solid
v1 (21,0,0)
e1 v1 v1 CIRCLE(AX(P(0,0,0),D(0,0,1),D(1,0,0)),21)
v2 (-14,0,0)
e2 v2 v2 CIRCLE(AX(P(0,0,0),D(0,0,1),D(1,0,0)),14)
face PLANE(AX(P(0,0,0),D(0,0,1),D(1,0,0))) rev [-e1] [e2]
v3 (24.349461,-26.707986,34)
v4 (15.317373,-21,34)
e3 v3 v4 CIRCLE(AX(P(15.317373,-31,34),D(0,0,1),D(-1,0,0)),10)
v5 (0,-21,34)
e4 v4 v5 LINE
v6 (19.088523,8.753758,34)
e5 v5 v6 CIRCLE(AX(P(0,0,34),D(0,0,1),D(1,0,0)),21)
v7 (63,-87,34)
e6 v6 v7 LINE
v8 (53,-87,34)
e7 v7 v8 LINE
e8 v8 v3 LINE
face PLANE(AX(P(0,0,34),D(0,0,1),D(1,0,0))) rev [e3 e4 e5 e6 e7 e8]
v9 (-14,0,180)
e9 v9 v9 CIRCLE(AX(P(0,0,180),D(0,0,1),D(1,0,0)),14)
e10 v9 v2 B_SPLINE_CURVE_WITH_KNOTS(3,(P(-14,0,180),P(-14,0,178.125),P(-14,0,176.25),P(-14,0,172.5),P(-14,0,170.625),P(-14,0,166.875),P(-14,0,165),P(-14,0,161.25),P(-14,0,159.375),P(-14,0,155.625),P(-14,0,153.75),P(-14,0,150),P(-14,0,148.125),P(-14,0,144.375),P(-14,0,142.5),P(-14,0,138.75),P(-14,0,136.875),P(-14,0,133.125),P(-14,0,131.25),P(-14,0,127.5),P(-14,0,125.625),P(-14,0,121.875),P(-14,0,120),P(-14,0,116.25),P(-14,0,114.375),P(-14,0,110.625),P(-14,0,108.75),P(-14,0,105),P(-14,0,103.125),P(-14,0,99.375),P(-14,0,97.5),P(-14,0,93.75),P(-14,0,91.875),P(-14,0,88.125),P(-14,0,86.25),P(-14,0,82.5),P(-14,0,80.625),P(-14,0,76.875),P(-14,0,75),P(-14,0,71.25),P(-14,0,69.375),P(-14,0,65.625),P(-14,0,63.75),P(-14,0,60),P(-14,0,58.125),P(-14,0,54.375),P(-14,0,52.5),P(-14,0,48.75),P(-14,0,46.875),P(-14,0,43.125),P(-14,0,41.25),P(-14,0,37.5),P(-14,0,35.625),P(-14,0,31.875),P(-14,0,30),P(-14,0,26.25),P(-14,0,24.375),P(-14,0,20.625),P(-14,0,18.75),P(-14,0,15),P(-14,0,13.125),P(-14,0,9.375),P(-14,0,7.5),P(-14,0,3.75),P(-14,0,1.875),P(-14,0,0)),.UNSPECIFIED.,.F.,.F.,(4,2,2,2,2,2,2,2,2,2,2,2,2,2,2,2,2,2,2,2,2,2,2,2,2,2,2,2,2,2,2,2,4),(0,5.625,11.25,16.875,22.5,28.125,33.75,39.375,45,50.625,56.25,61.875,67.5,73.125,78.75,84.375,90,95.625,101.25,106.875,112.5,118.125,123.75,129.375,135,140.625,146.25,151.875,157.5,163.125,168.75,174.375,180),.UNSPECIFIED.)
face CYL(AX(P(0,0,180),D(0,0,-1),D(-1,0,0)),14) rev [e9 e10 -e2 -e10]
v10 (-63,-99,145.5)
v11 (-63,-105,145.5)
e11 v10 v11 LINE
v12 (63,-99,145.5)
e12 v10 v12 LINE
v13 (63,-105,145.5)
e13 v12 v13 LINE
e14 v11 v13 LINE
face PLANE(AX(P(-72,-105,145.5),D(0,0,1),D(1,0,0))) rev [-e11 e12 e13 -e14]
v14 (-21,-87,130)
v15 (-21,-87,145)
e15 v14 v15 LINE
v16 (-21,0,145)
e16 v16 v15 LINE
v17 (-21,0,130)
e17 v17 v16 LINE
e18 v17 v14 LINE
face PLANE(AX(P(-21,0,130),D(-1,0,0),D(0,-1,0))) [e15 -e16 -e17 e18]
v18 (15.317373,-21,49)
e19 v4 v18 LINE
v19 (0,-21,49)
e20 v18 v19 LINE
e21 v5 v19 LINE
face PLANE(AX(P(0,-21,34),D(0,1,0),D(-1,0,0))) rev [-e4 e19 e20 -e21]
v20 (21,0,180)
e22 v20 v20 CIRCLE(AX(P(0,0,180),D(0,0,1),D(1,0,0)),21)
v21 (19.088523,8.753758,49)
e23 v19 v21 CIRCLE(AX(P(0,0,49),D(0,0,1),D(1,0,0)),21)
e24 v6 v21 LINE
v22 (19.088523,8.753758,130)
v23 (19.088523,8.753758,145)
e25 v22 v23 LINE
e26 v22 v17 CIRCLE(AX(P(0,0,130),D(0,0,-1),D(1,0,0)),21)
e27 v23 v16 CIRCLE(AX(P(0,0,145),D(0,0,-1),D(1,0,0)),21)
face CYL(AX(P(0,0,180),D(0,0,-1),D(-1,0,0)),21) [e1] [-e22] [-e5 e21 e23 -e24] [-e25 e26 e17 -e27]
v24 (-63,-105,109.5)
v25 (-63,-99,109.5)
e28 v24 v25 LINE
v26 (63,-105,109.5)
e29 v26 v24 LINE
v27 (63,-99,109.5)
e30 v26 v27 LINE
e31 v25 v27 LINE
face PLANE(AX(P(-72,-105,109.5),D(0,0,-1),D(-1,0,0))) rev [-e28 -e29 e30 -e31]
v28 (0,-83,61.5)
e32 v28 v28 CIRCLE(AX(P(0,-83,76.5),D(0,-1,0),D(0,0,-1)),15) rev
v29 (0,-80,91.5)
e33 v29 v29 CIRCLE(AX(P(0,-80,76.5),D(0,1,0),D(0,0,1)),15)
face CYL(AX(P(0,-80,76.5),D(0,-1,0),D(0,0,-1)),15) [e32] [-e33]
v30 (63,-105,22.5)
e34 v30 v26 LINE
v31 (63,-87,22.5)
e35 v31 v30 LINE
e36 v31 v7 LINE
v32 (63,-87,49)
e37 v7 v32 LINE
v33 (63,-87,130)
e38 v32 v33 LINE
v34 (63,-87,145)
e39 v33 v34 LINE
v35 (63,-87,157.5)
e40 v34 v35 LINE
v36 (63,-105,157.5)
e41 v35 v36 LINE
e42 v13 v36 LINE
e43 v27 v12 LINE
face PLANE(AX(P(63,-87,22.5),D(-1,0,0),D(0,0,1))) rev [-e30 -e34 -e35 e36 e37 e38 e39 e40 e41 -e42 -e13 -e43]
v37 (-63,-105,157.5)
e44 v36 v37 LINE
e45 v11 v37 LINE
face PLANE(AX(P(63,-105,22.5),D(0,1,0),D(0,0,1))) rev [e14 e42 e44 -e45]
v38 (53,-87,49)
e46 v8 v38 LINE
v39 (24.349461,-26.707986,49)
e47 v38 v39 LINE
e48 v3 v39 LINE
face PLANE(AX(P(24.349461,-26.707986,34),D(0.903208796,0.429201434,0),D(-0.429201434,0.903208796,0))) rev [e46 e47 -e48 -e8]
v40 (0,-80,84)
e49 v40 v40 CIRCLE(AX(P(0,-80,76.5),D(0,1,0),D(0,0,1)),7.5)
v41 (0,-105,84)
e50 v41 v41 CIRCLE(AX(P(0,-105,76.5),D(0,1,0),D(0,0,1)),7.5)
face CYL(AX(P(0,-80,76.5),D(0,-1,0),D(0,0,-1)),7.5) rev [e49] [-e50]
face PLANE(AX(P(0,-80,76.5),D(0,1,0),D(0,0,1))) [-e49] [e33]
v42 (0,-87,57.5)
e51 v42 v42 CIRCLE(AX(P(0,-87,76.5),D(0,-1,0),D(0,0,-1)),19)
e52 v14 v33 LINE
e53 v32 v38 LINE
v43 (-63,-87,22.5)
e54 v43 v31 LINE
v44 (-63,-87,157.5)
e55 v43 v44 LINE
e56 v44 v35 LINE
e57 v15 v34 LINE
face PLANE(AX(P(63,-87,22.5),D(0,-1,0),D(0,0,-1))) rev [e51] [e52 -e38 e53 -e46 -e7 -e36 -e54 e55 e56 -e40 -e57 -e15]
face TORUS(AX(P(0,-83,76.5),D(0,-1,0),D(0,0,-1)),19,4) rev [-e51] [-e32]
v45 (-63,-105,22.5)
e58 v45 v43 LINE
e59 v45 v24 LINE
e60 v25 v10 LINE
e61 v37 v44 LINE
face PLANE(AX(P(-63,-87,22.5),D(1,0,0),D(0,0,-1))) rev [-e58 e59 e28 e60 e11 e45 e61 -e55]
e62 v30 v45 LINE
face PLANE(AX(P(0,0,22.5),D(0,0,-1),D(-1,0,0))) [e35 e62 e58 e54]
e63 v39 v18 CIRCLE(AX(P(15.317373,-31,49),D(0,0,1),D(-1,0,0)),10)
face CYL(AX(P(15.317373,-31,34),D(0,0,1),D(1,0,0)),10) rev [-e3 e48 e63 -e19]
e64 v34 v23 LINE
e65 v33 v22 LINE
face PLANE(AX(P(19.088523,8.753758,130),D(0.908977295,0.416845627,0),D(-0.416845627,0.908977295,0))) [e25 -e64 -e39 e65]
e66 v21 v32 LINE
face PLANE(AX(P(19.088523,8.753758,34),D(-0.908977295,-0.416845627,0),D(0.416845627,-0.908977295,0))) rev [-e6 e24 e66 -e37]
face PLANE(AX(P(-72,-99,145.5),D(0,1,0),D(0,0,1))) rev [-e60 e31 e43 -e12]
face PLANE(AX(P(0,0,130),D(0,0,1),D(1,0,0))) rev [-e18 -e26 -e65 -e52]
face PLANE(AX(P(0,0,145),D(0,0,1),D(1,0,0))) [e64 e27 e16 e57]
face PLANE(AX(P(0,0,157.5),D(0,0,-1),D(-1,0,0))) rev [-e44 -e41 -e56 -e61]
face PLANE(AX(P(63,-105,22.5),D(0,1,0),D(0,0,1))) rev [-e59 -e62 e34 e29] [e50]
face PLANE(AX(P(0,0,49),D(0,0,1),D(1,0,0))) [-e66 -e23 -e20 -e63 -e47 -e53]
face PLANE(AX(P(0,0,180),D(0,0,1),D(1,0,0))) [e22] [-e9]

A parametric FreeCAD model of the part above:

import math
import FreeCAD as App
import Part
import Sketcher

V = App.Vector
Q = App.Units.Quantity


def edges_at(feature, points):
    """Names of the edges that pass closest to the given points."""
    edges = feature.Shape.Edges
    near = lambda p: min(range(len(edges)), key=lambda i: edges[i].distToShape(Part.Vertex(*p))[0])
    return sorted({f"Edge{near(p) + 1}" for p in points})


def add_polygon(sketch, points):
    """Adds a closed chain of lines whose ends are joined by coincident constraints."""
    first, n = sketch.GeometryCount, len(points)
    for a, b in zip(points, points[1:] + points[:1]):
        sketch.addGeometry(Part.LineSegment(App.Vector(*a, 0), App.Vector(*b, 0)), False)
    for i in range(n):
        sketch.addConstraint(Sketcher.Constraint("Coincident", first + i, 2, first + (i + 1) % n, 1))

doc = App.newDocument("Part")
body = doc.addObject("PartDesign::Body", "Body")

# Sketch on XY plane
sketch1 = body.newObject("Sketcher::SketchObject", "Sketch")
sketch1.AttachmentSupport = (doc.getObject("XY_Plane"), [""])
sketch1.MapMode = "FlatFace"
sketch1.addGeometry(Part.Circle(V(0, 0, 0), V(0, 0, 1), 21), False)
sketch1.addGeometry(Part.Circle(V(0, 0, 0), V(0, 0, 1), 14), False)
sketch1.addConstraint(Sketcher.Constraint("Coincident", 0, 3, -1, 1))
sketch1.addConstraint(Sketcher.Constraint("Coincident", 1, 3, -1, 1))
sketch1.addConstraint(Sketcher.Constraint("Diameter", 0, Q("42 mm")))
sketch1.addConstraint(Sketcher.Constraint("Diameter", 1, Q("28 mm")))
pad1 = body.newObject("PartDesign::Pad", "Pad")
pad1.Profile = sketch1
pad1.Length = 180
body2 = doc.addObject("PartDesign::Body", "Body001")

# Sketch on XY plane
sketch2 = body2.newObject("Sketcher::SketchObject", "Sketch001")
sketch2.AttachmentSupport = (doc.getObject("XY_Plane001"), [""])
sketch2.MapMode = "FlatFace"
sketch2.AttachmentOffset = App.Placement(V(0, 0, 90), App.Rotation())
add_polygon(sketch2, [(63, -87), (63, -105), (-63, -105), (-63, -87)])  # lines 0-3
sketch2.addConstraint(Sketcher.Constraint("Vertical", 0))
sketch2.addConstraint(Sketcher.Constraint("Horizontal", 1))
sketch2.addConstraint(Sketcher.Constraint("Vertical", 2))
sketch2.addConstraint(Sketcher.Constraint("Horizontal", 3))
sketch2.addConstraint(Sketcher.Constraint("DistanceX", 1, 2, 1, 1, Q("126 mm")))
sketch2.addConstraint(Sketcher.Constraint("DistanceY", 0, 2, 0, 1, Q("18 mm")))
sketch2.addConstraint(Sketcher.Constraint("DistanceX", -1, 1, 0, 2, Q("63 mm")))
sketch2.addConstraint(Sketcher.Constraint("DistanceY", 0, 2, -1, 1, Q("105 mm")))
pad2 = body2.newObject("PartDesign::Pad", "Pad001")
pad2.Profile = sketch2
pad2.Length = 135
pad2.Midplane = True

# Sketch on YZ plane
sketch3 = body2.newObject("Sketcher::SketchObject", "Sketch002")
sketch3.AttachmentSupport = (doc.getObject("YZ_Plane001"), [""])
sketch3.MapMode = "FlatFace"
sketch3.AttachmentOffset = App.Placement(V(0, 0, 63), App.Rotation())
add_polygon(sketch3, [(-99, 145.5), (-105, 145.5), (-105, 109.5), (-99, 109.5)])  # lines 0-3
sketch3.addConstraint(Sketcher.Constraint("Horizontal", 0))
sketch3.addConstraint(Sketcher.Constraint("Vertical", 1))
sketch3.addConstraint(Sketcher.Constraint("Horizontal", 2))
sketch3.addConstraint(Sketcher.Constraint("Vertical", 3))
sketch3.addConstraint(Sketcher.Constraint("DistanceX", 0, 2, 0, 1, Q("6 mm")))
sketch3.addConstraint(Sketcher.Constraint("DistanceY", 1, 2, 1, 1, Q("36 mm")))
sketch3.addConstraint(Sketcher.Constraint("DistanceX", 0, 2, -1, 1, Q("105 mm")))
sketch3.addConstraint(Sketcher.Constraint("DistanceY", -1, 1, 0, 2, Q("145.5 mm")))
pocket1 = body2.newObject("PartDesign::Pocket", "Pocket")
pocket1.Profile = sketch3
pocket1.Length = 135

# Sketch on XZ plane
sketch4 = body2.newObject("Sketcher::SketchObject", "Sketch003")
sketch4.AttachmentSupport = (doc.getObject("XZ_Plane001"), [""])
sketch4.MapMode = "FlatFace"
sketch4.AttachmentOffset = App.Placement(V(0, 0, 87), App.Rotation())
sketch4.addGeometry(Part.Circle(V(0, 76.5, 0), V(0, 0, 1), 15), False)
sketch4.addGeometry(Part.Circle(V(0, 76.5, 0), V(0, 0, 1), 7.5), False)
sketch4.addConstraint(Sketcher.Constraint("Coincident", 1, 3, 0, 3))
sketch4.addConstraint(Sketcher.Constraint("PointOnObject", 0, 3, -2))
sketch4.addConstraint(Sketcher.Constraint("Diameter", 0, Q("30 mm")))
sketch4.addConstraint(Sketcher.Constraint("Diameter", 1, Q("15 mm")))
sketch4.addConstraint(Sketcher.Constraint("DistanceY", -1, 1, 0, 3, Q("76.5 mm")))
pad3 = body2.newObject("PartDesign::Pad", "Pad002")
pad3.Profile = sketch4
pad3.Length = 7
pad3.Reversed = True
doc.recompute()

fillet = body2.newObject("PartDesign::Fillet", "Fillet")
fillet.Base = (pad3, edges_at(pad3, [(0, -87, 91.5)]))
fillet.Radius = 4
body.AllowCompound = True
doc.recompute()

boolean = body.newObject("PartDesign::Boolean", "Boolean")
boolean.Type = "Fuse"
boolean.addObjects([body2])

# Sketch on XY plane
sketch5 = body.newObject("Sketcher::SketchObject", "Sketch004")
sketch5.AttachmentSupport = (doc.getObject("XY_Plane"), [""])
sketch5.MapMode = "FlatFace"
sketch5.AttachmentOffset = App.Placement(V(0, 0, 130), App.Rotation())
sketch5.addGeometry(Part.LineSegment(V(-21, 0, 0), V(-21, -87, 0)), False)
sketch5.addGeometry(Part.LineSegment(V(-21, -87, 0), V(63, -87, 0)), False)
sketch5.addGeometry(Part.LineSegment(V(63, -87, 0), V(19.088523, 8.753758, 0)), False)
sketch5.addGeometry(Part.ArcOfCircle(Part.Circle(V(0, 0, 0), V(0, 0, 1), 21), math.radians(180), math.radians(384.635598)), False)
sketch5.addConstraint(Sketcher.Constraint("Coincident", 0, 2, 1, 1))
sketch5.addConstraint(Sketcher.Constraint("Coincident", 1, 2, 2, 1))
sketch5.addConstraint(Sketcher.Constraint("Tangent", 2, 2, 3, 2))
sketch5.addConstraint(Sketcher.Constraint("Tangent", 3, 1, 0, 1))
sketch5.addConstraint(Sketcher.Constraint("Vertical", 0))
sketch5.addConstraint(Sketcher.Constraint("Horizontal", 1))
sketch5.addConstraint(Sketcher.Constraint("Coincident", 3, 3, -1, 1))
sketch5.addConstraint(Sketcher.Constraint("Radius", 3, Q("21 mm")))
sketch5.addConstraint(Sketcher.Constraint("DistanceX", 1, 1, 1, 2, Q("84 mm")))
sketch5.addConstraint(Sketcher.Constraint("DistanceY", 0, 2, 0, 1, Q("87 mm")))
pad4 = body.newObject("PartDesign::Pad", "Pad003")
pad4.Profile = sketch5
pad4.Length = 15

# Sketch on XY plane
sketch6 = body.newObject("Sketcher::SketchObject", "Sketch005")
sketch6.AttachmentSupport = (doc.getObject("XY_Plane"), [""])
sketch6.MapMode = "FlatFace"
sketch6.AttachmentOffset = App.Placement(V(0, 0, 34), App.Rotation())
sketch6.addGeometry(Part.LineSegment(V(15.317373, -21, 0), V(0, -21, 0)), False)
sketch6.addGeometry(Part.ArcOfCircle(Part.Circle(V(0, 0, 0), V(0, 0, 1), 21), math.radians(-90), math.radians(24.635598)), False)
sketch6.addGeometry(Part.LineSegment(V(19.088523, 8.753758, 0), V(63, -87, 0)), False)
sketch6.addGeometry(Part.LineSegment(V(63, -87, 0), V(53, -87, 0)), False)
sketch6.addGeometry(Part.LineSegment(V(53, -87, 0), V(24.349461, -26.707986, 0)), False)
sketch6.addGeometry(Part.ArcOfCircle(Part.Circle(V(15.317373, -31, 0), V(0, 0, 1), 10), math.radians(25.416892), math.radians(90)), False)
sketch6.addConstraint(Sketcher.Constraint("Tangent", 0, 2, 1, 1))
sketch6.addConstraint(Sketcher.Constraint("Tangent", 1, 2, 2, 1))
sketch6.addConstraint(Sketcher.Constraint("Coincident", 2, 2, 3, 1))
sketch6.addConstraint(Sketcher.Constraint("Coincident", 3, 2, 4, 1))
sketch6.addConstraint(Sketcher.Constraint("Tangent", 4, 2, 5, 1))
sketch6.addConstraint(Sketcher.Constraint("Tangent", 5, 2, 0, 1))
sketch6.addConstraint(Sketcher.Constraint("Horizontal", 0))
sketch6.addConstraint(Sketcher.Constraint("Horizontal", 3))
sketch6.addConstraint(Sketcher.Constraint("Coincident", 1, 3, -1, 1))
sketch6.addConstraint(Sketcher.Constraint("Radius", 1, Q("21 mm")))
sketch6.addConstraint(Sketcher.Constraint("Radius", 5, Q("10 mm")))
sketch6.addConstraint(Sketcher.Constraint("DistanceX", 3, 2, 3, 1, Q("10 mm")))
sketch6.addConstraint(Sketcher.Constraint("DistanceX", -1, 1, 2, 2, Q("63 mm")))
sketch6.addConstraint(Sketcher.Constraint("DistanceY", 2, 2, -1, 1, Q("87 mm")))
sketch6.addConstraint(Sketcher.Constraint("Distance", 4, Q("66.75313 mm")))
pad5 = body.newObject("PartDesign::Pad", "Pad004")
pad5.Profile = sketch6
pad5.Length = 15

# Sketch on XZ plane
sketch7 = body.newObject("Sketcher::SketchObject", "Sketch006")
sketch7.AttachmentSupport = (doc.getObject("XZ_Plane"), [""])
sketch7.MapMode = "FlatFace"
sketch7.AttachmentOffset = App.Placement(V(0, 0, 136), App.Rotation())
sketch7.addGeometry(Part.Circle(V(0, 76.5, 0), V(0, 0, 1), 7.5), False)
sketch7.addConstraint(Sketcher.Constraint("PointOnObject", 0, 3, -2))
sketch7.addConstraint(Sketcher.Constraint("Diameter", 0, Q("15 mm")))
sketch7.addConstraint(Sketcher.Constraint("DistanceY", -1, 1, 0, 3, Q("76.5 mm")))
pocket2 = body.newObject("PartDesign::Pocket", "Pocket001")
pocket2.Profile = sketch7
pocket2.Length = 49

doc.recompute()
